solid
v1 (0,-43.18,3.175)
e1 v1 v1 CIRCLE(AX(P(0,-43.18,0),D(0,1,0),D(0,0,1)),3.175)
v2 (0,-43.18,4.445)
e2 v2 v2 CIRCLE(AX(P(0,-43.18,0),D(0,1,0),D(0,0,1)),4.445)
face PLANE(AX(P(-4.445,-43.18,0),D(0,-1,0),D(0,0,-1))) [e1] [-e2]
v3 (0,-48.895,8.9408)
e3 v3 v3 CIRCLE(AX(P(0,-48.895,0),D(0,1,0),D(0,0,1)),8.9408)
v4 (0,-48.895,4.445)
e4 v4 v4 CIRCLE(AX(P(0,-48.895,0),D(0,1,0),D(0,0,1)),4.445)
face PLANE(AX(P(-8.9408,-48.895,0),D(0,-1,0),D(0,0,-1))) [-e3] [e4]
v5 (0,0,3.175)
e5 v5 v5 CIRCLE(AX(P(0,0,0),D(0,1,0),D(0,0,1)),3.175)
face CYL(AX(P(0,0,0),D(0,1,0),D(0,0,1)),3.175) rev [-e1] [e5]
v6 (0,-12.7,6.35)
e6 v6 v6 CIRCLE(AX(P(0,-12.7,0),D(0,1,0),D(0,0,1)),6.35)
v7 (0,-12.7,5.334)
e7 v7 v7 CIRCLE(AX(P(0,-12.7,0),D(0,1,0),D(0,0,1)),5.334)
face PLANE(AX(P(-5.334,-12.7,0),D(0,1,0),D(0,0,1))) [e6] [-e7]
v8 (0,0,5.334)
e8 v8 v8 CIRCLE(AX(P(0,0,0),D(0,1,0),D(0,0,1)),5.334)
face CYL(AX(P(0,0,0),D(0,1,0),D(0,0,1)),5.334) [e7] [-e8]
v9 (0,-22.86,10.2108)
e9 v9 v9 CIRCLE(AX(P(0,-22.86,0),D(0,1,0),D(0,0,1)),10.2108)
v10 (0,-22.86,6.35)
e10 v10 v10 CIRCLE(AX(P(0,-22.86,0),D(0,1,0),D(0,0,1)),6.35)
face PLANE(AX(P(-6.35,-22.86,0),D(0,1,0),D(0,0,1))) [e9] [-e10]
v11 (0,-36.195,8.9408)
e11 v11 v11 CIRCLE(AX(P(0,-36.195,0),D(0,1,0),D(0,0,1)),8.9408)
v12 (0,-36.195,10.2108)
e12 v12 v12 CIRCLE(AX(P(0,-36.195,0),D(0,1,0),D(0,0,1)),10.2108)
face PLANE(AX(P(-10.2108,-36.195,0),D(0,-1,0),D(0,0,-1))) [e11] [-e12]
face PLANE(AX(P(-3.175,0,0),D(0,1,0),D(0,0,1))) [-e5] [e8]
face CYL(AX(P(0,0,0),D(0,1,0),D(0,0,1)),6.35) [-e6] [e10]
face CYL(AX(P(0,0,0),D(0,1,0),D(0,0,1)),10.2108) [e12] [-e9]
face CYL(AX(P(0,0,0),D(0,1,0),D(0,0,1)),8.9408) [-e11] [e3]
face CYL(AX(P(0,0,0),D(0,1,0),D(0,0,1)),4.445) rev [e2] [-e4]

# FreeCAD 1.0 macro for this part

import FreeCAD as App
import Part
import Sketcher

V = App.Vector
Q = App.Units.Quantity

doc = App.newDocument("Part")
params = doc.addObject("Spreadsheet::Sheet", "Params")
for row, (alias, value) in enumerate([
    ("sketch1_height", "0.5 in"),
    ("sketch1_height2", "0.4 in"),
    ("sketch1_height3", "1.7 in"),
    ("sketch1_width", "0.04 in"),
    ("sketch1_width2", "0.05 in"),
    ("revolution_angle", "360 deg"),
], start=1):
    params.set(f"A{row}", alias)
    params.set(f"B{row}", "=" + value)
    params.setAlias(f"B{row}", alias)

body = doc.addObject("PartDesign::Body", "Body")

sketch1 = body.newObject("Sketcher::SketchObject", "Sketch")
sketch1.AttachmentSupport = (doc.getObject("XY_Plane"), [""])
sketch1.MapMode = "FlatFace"
sketch1.addGeometry(Part.LineSegment(V(-3.175, 0, 0), V(-5.334, 0, 0)), False)
sketch1.addGeometry(Part.LineSegment(V(-5.334, 0, 0), V(-5.334, -12.7, 0)), False)
sketch1.addGeometry(Part.LineSegment(V(-5.334, -12.7, 0), V(-6.35, -12.7, 0)), False)
sketch1.addGeometry(Part.LineSegment(V(-6.35, -12.7, 0), V(-6.35, -22.86, 0)), False)
sketch1.addGeometry(Part.LineSegment(V(-6.35, -22.86, 0), V(-10.2108, -22.86, 0)), False)
sketch1.addGeometry(Part.LineSegment(V(-10.2108, -22.86, 0), V(-10.2108, -36.195, 0)), False)
sketch1.addGeometry(Part.LineSegment(V(-10.2108, -36.195, 0), V(-8.9408, -36.195, 0)), False)
sketch1.addGeometry(Part.LineSegment(V(-8.9408, -36.195, 0), V(-8.9408, -48.895, 0)), False)
sketch1.addGeometry(Part.LineSegment(V(-8.9408, -48.895, 0), V(-4.445, -48.895, 0)), False)
sketch1.addGeometry(Part.LineSegment(V(-4.445, -48.895, 0), V(-4.445, -43.18, 0)), False)
sketch1.addGeometry(Part.LineSegment(V(-4.445, -43.18, 0), V(-3.175, -43.18, 0)), False)
sketch1.addGeometry(Part.LineSegment(V(-3.175, -43.18, 0), V(-3.175, 0, 0)), False)
sketch1.addConstraint(Sketcher.Constraint("Coincident", 0, 2, 1, 1))
sketch1.addConstraint(Sketcher.Constraint("Coincident", 1, 2, 2, 1))
sketch1.addConstraint(Sketcher.Constraint("Coincident", 2, 2, 3, 1))
sketch1.addConstraint(Sketcher.Constraint("Coincident", 3, 2, 4, 1))
sketch1.addConstraint(Sketcher.Constraint("Coincident", 4, 2, 5, 1))
sketch1.addConstraint(Sketcher.Constraint("Coincident", 5, 2, 6, 1))
sketch1.addConstraint(Sketcher.Constraint("Coincident", 6, 2, 7, 1))
sketch1.addConstraint(Sketcher.Constraint("Coincident", 7, 2, 8, 1))
sketch1.addConstraint(Sketcher.Constraint("Coincident", 8, 2, 9, 1))
sketch1.addConstraint(Sketcher.Constraint("Coincident", 9, 2, 10, 1))
sketch1.addConstraint(Sketcher.Constraint("Coincident", 10, 2, 11, 1))
sketch1.addConstraint(Sketcher.Constraint("Coincident", 11, 2, 0, 1))
sketch1.addConstraint(Sketcher.Constraint("Horizontal", 0))
sketch1.addConstraint(Sketcher.Constraint("Vertical", 1))
sketch1.addConstraint(Sketcher.Constraint("Horizontal", 2))
sketch1.addConstraint(Sketcher.Constraint("Vertical", 3))
sketch1.addConstraint(Sketcher.Constraint("Horizontal", 4))
sketch1.addConstraint(Sketcher.Constraint("Vertical", 5))
sketch1.addConstraint(Sketcher.Constraint("Horizontal", 6))
sketch1.addConstraint(Sketcher.Constraint("Vertical", 7))
sketch1.addConstraint(Sketcher.Constraint("Horizontal", 8))
sketch1.addConstraint(Sketcher.Constraint("Vertical", 9))
sketch1.addConstraint(Sketcher.Constraint("Horizontal", 10))
sketch1.addConstraint(Sketcher.Constraint("Vertical", 11))
sketch1.addConstraint(Sketcher.Constraint("PointOnObject", 0, 2, -1))
sketch1.addConstraint(Sketcher.Constraint("Equal", 6, 10))
sketch1.addConstraint(Sketcher.Constraint("Equal", 1, 7))
sketch1.addConstraint(Sketcher.Constraint("DistanceY", 1, 2, 1, 1, Q("0.5 in")))
sketch1.addConstraint(Sketcher.Constraint("DistanceY", 3, 2, 3, 1, Q("0.4 in")))
sketch1.addConstraint(Sketcher.Constraint("DistanceY", 11, 1, 11, 2, Q("1.7 in")))
sketch1.addConstraint(Sketcher.Constraint("DistanceX", 2, 2, 2, 1, Q("0.04 in")))
sketch1.addConstraint(Sketcher.Constraint("DistanceX", 6, 1, 6, 2, Q("0.05 in")))
sketch1.addConstraint(Sketcher.Constraint("DistanceX", 0, 2, 0, 1, Q("0.085 in")))
sketch1.addConstraint(Sketcher.Constraint("DistanceX", 4, 2, 4, 1, Q("0.152 in")))
sketch1.addConstraint(Sketcher.Constraint("DistanceY", 5, 2, 5, 1, Q("0.525 in")))
sketch1.addConstraint(Sketcher.Constraint("DistanceX", 0, 2, -1, 1, Q("0.21 in")))
sketch1.setExpression("Constraints[27]", "Params.sketch1_height")
sketch1.setExpression("Constraints[28]", "Params.sketch1_height2")
sketch1.setExpression("Constraints[29]", "Params.sketch1_height3")
sketch1.setExpression("Constraints[30]", "Params.sketch1_width")
sketch1.setExpression("Constraints[31]", "Params.sketch1_width2")
revolution = body.newObject("PartDesign::Revolution", "Revolution")
revolution.Profile = sketch1
revolution.ReferenceAxis = (sketch1, ["V_Axis"])
revolution.setExpression("Angle", "Params.revolution_angle")

doc.recompute()
